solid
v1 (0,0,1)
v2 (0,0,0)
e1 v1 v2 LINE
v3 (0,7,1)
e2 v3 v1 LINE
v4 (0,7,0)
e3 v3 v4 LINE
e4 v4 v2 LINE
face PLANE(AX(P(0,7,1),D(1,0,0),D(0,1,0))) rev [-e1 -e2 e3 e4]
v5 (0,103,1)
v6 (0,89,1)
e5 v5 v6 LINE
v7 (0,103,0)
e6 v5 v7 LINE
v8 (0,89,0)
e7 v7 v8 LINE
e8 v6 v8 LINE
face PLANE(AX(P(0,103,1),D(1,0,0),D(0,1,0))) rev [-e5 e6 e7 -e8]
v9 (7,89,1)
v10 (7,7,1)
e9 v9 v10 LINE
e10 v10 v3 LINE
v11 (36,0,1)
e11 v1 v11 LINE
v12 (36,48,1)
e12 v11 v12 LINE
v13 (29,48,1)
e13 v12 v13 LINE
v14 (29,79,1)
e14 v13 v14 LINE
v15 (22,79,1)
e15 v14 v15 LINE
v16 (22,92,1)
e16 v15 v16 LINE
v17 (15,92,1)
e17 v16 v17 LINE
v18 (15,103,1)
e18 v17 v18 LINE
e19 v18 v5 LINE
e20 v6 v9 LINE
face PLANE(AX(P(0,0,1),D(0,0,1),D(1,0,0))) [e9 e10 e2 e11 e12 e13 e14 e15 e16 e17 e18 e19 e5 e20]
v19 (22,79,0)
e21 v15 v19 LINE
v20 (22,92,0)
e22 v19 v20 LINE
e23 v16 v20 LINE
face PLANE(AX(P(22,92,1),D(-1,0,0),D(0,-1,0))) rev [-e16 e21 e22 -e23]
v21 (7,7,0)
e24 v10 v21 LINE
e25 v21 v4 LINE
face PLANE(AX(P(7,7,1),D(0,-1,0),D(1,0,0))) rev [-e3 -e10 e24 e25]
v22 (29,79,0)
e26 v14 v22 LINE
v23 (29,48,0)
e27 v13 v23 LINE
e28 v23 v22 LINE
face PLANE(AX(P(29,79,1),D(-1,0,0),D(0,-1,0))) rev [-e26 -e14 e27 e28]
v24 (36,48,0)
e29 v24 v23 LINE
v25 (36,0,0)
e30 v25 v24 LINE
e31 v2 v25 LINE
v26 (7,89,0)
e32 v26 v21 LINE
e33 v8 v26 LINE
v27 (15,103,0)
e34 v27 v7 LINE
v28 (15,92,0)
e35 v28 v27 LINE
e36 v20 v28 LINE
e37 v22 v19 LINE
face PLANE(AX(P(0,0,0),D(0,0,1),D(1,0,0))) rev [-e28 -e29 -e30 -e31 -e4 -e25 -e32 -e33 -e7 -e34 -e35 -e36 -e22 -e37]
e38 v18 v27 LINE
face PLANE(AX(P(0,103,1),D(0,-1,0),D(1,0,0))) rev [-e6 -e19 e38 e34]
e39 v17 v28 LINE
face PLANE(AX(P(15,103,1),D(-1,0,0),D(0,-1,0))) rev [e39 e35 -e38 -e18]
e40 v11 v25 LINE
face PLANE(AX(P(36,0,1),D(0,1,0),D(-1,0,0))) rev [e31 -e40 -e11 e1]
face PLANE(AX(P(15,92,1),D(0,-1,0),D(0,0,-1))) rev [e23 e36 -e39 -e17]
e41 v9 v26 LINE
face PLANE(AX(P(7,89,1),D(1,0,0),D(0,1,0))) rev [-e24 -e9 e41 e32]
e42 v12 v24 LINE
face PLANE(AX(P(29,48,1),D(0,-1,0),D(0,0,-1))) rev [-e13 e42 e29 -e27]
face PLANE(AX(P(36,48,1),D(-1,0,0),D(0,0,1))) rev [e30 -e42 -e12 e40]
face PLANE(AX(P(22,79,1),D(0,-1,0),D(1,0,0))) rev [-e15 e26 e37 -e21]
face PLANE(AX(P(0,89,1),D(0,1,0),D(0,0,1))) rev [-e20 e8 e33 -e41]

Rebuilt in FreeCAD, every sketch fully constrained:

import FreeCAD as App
import Part
import Sketcher

V = App.Vector
Q = App.Units.Quantity

doc = App.newDocument("Part")
body = doc.addObject("PartDesign::Body", "Body")

# Sketch on XY plane
sketch1 = body.newObject("Sketcher::SketchObject", "Sketch")
sketch1.AttachmentSupport = (doc.getObject("XY_Plane"), [""])
sketch1.MapMode = "FlatFace"
sketch1.addGeometry([
    Part.LineSegment(V(15, 103, 0), V(0, 103, 0)),  # 0
    Part.LineSegment(V(0, 103, 0), V(0, 89, 0)),  # 1
    Part.LineSegment(V(0, 89, 0), V(7, 89, 0)),  # 2
    Part.LineSegment(V(7, 89, 0), V(7, 7, 0)),  # 3
    Part.LineSegment(V(7, 7, 0), V(0, 7, 0)),  # 4
    Part.LineSegment(V(0, 7, 0), V(0, 0, 0)),  # 5
    Part.LineSegment(V(0, 0, 0), V(36, 0, 0)),  # 6
    Part.LineSegment(V(36, 0, 0), V(36, 48, 0)),  # 7
    Part.LineSegment(V(36, 48, 0), V(29, 48, 0)),  # 8
    Part.LineSegment(V(29, 48, 0), V(29, 79, 0)),  # 9
    Part.LineSegment(V(29, 79, 0), V(22, 79, 0)),  # 10
    Part.LineSegment(V(22, 79, 0), V(22, 92, 0)),  # 11
    Part.LineSegment(V(22, 92, 0), V(15, 92, 0)),  # 12
    Part.LineSegment(V(15, 92, 0), V(15, 103, 0)),  # 13
], False)
sketch1.addConstraint([
    Sketcher.Constraint("Coincident", 0, 2, 1, 1),
    Sketcher.Constraint("Coincident", 1, 2, 2, 1),
    Sketcher.Constraint("Coincident", 2, 2, 3, 1),
    Sketcher.Constraint("Coincident", 3, 2, 4, 1),
    Sketcher.Constraint("Coincident", 4, 2, 5, 1),
    Sketcher.Constraint("Coincident", 5, 2, 6, 1),
    Sketcher.Constraint("Coincident", 6, 2, 7, 1),
    Sketcher.Constraint("Coincident", 7, 2, 8, 1),
    Sketcher.Constraint("Coincident", 8, 2, 9, 1),
    Sketcher.Constraint("Coincident", 9, 2, 10, 1),
    Sketcher.Constraint("Coincident", 10, 2, 11, 1),
    Sketcher.Constraint("Coincident", 11, 2, 12, 1),
    Sketcher.Constraint("Coincident", 12, 2, 13, 1),
    Sketcher.Constraint("Coincident", 13, 2, 0, 1),
    Sketcher.Constraint("Horizontal", 0),
    Sketcher.Constraint("Vertical", 1),
    Sketcher.Constraint("Horizontal", 2),
    Sketcher.Constraint("Vertical", 3),
    Sketcher.Constraint("Horizontal", 4),
    Sketcher.Constraint("Vertical", 5),
    Sketcher.Constraint("Horizontal", 6),
    Sketcher.Constraint("Vertical", 7),
    Sketcher.Constraint("Horizontal", 8),
    Sketcher.Constraint("Vertical", 9),
    Sketcher.Constraint("Horizontal", 10),
    Sketcher.Constraint("Vertical", 11),
    Sketcher.Constraint("Horizontal", 12),
    Sketcher.Constraint("Vertical", 13),
    Sketcher.Constraint("Coincident", 5, 2, -1, 1),
    Sketcher.Constraint("PointOnObject", 0, 2, -2),
    Sketcher.Constraint("Equal", 4, 8),
    Sketcher.Constraint("Equal", 8, 10),
    Sketcher.Constraint("Equal", 10, 12),
    Sketcher.Constraint("Equal", 12, 5),
    Sketcher.Constraint("DistanceX", 0, 2, 0, 1, Q("15 mm")),
    Sketcher.Constraint("DistanceX", 2, 1, 2, 2, Q("7 mm")),
    Sketcher.Constraint("DistanceY", 1, 2, 1, 1, Q("14 mm")),
    Sketcher.Constraint("DistanceY", 3, 2, 3, 1, Q("82 mm")),
    Sketcher.Constraint("DistanceY", 7, 1, 7, 2, Q("48 mm")),
    Sketcher.Constraint("DistanceY", 9, 1, 9, 2, Q("31 mm")),
    Sketcher.Constraint("DistanceY", 11, 1, 11, 2, Q("13 mm")),
])
pad1 = body.newObject("PartDesign::Pad", "Pad")
pad1.Profile = sketch1
pad1.Length = 1

doc.recompute()
